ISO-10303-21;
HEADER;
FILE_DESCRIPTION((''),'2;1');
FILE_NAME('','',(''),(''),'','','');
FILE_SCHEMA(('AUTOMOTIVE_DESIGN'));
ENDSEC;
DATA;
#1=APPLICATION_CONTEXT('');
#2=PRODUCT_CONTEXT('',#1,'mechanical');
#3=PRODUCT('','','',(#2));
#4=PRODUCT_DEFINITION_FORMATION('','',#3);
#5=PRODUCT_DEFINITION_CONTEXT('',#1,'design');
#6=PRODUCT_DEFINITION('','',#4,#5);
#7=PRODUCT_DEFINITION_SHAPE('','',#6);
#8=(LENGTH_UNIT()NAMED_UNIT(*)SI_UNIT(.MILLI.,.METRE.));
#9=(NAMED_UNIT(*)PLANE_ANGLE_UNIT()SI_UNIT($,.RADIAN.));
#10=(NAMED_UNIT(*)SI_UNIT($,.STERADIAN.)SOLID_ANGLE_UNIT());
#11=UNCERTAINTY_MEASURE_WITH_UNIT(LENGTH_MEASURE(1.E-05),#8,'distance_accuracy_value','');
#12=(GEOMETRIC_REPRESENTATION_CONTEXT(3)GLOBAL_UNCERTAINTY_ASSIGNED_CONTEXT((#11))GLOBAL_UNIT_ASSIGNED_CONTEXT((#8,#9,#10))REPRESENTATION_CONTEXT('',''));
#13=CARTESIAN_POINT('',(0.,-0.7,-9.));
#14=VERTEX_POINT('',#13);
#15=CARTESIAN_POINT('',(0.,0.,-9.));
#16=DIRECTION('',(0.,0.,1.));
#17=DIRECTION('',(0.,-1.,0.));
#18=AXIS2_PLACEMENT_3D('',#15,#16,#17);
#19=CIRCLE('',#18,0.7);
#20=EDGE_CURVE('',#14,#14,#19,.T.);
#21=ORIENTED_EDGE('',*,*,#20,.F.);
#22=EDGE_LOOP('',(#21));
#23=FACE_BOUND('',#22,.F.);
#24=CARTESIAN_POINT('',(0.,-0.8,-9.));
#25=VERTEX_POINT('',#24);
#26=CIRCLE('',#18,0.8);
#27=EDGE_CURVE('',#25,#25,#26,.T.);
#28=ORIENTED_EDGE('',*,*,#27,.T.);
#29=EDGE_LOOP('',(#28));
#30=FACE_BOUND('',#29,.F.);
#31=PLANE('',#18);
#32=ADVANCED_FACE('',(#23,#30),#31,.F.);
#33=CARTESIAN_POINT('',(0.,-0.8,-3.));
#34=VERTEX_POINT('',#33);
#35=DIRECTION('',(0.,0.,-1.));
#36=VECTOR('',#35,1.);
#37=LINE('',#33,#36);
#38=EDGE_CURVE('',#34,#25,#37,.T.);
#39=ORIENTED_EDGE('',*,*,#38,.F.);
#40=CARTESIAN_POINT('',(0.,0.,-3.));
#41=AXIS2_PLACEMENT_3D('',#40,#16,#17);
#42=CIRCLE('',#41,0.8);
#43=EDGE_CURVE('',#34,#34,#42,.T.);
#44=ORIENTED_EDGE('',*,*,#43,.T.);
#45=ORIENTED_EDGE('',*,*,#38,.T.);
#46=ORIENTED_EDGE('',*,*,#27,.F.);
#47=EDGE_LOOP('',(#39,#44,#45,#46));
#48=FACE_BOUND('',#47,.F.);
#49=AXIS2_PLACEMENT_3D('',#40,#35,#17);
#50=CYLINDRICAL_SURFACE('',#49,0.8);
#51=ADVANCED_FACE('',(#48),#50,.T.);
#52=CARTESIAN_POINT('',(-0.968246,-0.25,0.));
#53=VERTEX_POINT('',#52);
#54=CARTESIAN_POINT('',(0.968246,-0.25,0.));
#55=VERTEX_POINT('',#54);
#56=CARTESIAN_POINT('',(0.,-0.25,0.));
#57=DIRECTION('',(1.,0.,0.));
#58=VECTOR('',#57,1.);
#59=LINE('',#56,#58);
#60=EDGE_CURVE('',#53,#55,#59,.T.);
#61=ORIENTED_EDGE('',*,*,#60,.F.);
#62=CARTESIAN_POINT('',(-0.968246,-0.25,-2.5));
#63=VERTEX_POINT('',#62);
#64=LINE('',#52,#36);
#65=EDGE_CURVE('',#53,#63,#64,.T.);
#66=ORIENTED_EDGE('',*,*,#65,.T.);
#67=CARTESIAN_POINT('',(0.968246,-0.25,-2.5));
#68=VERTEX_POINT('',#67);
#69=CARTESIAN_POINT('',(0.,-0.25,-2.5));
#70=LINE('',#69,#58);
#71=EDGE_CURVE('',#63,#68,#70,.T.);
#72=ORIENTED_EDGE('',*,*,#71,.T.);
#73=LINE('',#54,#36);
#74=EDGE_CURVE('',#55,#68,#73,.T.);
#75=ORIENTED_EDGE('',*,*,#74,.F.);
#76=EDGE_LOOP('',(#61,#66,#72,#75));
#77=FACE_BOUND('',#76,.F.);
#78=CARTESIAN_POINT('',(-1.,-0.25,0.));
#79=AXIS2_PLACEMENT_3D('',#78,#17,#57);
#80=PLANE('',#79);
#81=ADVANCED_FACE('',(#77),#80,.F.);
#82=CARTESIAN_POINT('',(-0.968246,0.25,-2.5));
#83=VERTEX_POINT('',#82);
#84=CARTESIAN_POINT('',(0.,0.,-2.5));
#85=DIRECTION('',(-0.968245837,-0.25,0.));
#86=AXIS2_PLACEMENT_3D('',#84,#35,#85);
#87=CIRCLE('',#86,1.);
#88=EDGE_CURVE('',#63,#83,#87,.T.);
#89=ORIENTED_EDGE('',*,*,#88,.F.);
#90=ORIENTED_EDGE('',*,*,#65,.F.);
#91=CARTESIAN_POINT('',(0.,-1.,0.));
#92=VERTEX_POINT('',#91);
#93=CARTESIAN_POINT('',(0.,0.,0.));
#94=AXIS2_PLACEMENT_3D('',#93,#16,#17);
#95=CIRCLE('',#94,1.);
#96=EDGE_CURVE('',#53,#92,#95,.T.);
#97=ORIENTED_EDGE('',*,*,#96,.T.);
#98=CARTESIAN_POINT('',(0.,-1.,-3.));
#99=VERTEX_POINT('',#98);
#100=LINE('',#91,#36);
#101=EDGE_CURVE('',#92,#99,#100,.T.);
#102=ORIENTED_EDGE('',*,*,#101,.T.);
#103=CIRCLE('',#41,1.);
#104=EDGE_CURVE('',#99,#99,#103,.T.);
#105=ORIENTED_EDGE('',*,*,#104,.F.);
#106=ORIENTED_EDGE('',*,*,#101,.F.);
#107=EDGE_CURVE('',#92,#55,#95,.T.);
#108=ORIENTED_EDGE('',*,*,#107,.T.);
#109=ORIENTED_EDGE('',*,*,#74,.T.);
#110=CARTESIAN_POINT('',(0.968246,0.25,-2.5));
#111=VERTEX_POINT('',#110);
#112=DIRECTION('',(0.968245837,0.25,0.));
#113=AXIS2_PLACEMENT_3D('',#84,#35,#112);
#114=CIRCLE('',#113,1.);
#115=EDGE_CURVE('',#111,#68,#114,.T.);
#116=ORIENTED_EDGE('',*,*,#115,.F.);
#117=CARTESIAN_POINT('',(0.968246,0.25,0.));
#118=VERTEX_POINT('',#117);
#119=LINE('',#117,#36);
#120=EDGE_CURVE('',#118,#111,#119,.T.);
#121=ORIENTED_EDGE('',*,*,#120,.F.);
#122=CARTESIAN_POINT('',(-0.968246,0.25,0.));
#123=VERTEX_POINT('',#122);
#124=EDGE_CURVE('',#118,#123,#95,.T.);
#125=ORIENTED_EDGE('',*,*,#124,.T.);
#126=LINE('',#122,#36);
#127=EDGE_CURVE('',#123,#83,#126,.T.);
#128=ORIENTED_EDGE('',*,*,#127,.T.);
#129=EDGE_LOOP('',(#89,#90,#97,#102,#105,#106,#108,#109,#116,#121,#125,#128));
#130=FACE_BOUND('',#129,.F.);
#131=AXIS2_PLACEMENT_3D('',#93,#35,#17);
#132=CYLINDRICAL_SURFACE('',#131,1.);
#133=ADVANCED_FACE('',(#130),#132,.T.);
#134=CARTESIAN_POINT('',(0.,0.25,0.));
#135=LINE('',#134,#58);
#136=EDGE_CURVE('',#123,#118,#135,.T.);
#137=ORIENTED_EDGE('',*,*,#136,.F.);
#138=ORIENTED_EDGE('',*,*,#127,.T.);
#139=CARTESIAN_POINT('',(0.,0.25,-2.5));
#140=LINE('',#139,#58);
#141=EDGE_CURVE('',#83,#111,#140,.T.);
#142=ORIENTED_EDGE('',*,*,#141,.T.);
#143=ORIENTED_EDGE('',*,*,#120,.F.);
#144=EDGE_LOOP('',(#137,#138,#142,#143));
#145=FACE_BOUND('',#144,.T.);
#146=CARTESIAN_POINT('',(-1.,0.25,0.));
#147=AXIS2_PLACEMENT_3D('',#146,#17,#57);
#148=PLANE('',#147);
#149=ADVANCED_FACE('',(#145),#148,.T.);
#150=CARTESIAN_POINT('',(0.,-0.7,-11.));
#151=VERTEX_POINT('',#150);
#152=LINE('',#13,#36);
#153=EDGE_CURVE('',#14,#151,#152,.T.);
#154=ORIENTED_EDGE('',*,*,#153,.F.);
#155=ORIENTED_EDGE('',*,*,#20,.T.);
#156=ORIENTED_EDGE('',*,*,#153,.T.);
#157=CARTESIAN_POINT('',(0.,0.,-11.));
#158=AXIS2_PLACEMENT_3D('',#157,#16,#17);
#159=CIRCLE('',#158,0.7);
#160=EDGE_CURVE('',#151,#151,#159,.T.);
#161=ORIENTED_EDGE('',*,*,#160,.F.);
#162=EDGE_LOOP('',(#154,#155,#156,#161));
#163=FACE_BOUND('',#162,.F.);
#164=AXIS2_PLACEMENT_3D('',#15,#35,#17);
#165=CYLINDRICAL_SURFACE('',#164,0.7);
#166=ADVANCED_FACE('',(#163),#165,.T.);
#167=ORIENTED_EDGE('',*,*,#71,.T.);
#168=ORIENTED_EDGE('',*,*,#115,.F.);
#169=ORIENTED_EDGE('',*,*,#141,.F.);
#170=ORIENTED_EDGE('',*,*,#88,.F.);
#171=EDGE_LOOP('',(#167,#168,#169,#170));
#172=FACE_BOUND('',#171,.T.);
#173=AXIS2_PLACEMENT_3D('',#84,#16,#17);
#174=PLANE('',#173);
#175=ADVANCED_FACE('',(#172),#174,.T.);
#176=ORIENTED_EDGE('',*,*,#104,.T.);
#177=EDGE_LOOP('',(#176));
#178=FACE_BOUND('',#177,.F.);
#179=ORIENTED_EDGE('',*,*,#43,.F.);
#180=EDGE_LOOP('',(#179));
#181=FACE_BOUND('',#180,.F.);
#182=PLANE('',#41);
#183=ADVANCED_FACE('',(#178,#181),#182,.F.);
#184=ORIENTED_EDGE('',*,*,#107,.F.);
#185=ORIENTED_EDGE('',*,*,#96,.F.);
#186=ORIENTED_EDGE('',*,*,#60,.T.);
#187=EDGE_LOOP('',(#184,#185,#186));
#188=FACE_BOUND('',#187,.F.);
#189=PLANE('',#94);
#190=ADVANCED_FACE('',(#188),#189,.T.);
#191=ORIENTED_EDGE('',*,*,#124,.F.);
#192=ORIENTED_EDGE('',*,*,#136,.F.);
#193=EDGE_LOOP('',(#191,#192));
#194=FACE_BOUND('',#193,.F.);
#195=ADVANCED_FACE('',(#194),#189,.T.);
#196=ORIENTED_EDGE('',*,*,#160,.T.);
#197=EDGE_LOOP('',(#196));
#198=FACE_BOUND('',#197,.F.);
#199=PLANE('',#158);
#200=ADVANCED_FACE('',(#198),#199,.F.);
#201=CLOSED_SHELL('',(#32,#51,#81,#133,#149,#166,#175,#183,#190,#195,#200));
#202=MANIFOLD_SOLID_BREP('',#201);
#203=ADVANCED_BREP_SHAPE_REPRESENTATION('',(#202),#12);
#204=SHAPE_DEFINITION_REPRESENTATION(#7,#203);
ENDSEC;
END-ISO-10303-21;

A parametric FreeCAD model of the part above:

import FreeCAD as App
import Part
import Sketcher
from FreeCAD import Vector


def add_polygon(sketch, points):
    """Adds a closed chain of lines whose ends are joined by coincident constraints."""
    first, n = sketch.GeometryCount, len(points)
    for a, b in zip(points, points[1:] + points[:1]):
        sketch.addGeometry(Part.LineSegment(App.Vector(*a, 0), App.Vector(*b, 0)), False)
    for i in range(n):
        sketch.addConstraint(Sketcher.Constraint("Coincident", first + i, 2, first + (i + 1) % n, 1))

doc = App.newDocument("Part")
body = doc.addObject("PartDesign::Body", "Body")

# Sketch on YZ plane
sketch1 = body.newObject("Sketcher::SketchObject", "Sketch")
sketch1.AttachmentSupport = (doc.getObject("YZ_Plane"), [""])
sketch1.MapMode = "FlatFace"
add_polygon(sketch1, [(0, 0), (-1, 0), (-1, -3), (-0.8, -3), (-0.8, -9), (-0.7, -9), (-0.7, -11), (0, -11)])  # lines 0-7
sketch1.addConstraint(Sketcher.Constraint("Horizontal", 0))
sketch1.addConstraint(Sketcher.Constraint("Vertical", 1))
sketch1.addConstraint(Sketcher.Constraint("Horizontal", 2))
sketch1.addConstraint(Sketcher.Constraint("Vertical", 3))
sketch1.addConstraint(Sketcher.Constraint("Horizontal", 4))
sketch1.addConstraint(Sketcher.Constraint("Vertical", 5))
sketch1.addConstraint(Sketcher.Constraint("Horizontal", 6))
sketch1.addConstraint(Sketcher.Constraint("Vertical", 7))
sketch1.addConstraint(Sketcher.Constraint("Coincident", 7, 2, -1, 1))
sketch1.addConstraint(Sketcher.Constraint("DistanceX", 0, 2, 0, 1, 1.0))
sketch1.addConstraint(Sketcher.Constraint("DistanceY", 1, 2, 1, 1, 3.0))
sketch1.addConstraint(Sketcher.Constraint("DistanceY", 3, 2, 3, 1, 6.0))
sketch1.addConstraint(Sketcher.Constraint("DistanceY", 5, 2, 5, 1, 2.0))
sketch1.addConstraint(Sketcher.Constraint("DistanceX", 2, 1, 2, 2, 0.2))
sketch1.addConstraint(Sketcher.Constraint("DistanceX", 4, 1, 4, 2, 0.1))
revolution = body.newObject("PartDesign::Revolution", "Revolution")
revolution.Profile = sketch1
revolution.ReferenceAxis = (sketch1, ["V_Axis"])
revolution.Angle = 360

# Sketch on XY plane
sketch2 = body.newObject("Sketcher::SketchObject", "Sketch001")
sketch2.AttachmentSupport = (doc.getObject("XY_Plane"), [""])
sketch2.MapMode = "FlatFace"
add_polygon(sketch2, [(1, 0.25), (-1, 0.25), (-1, -0.25), (1, -0.25)])  # lines 0-3
sketch2.addConstraint(Sketcher.Constraint("Horizontal", 0))
sketch2.addConstraint(Sketcher.Constraint("Vertical", 1))
sketch2.addConstraint(Sketcher.Constraint("Horizontal", 2))
sketch2.addConstraint(Sketcher.Constraint("Vertical", 3))
sketch2.addConstraint(Sketcher.Constraint("Symmetric", 0, 2, 2, 2, -1, 1))
sketch2.addConstraint(Sketcher.Constraint("DistanceX", 0, 2, 0, 1, 2.0))
sketch2.addConstraint(Sketcher.Constraint("DistanceY", 1, 2, 1, 1, 0.5))
pocket1 = body.newObject("PartDesign::Pocket", "Pocket")
pocket1.Profile = sketch2
pocket1.Length = 2.5

doc.recompute()
